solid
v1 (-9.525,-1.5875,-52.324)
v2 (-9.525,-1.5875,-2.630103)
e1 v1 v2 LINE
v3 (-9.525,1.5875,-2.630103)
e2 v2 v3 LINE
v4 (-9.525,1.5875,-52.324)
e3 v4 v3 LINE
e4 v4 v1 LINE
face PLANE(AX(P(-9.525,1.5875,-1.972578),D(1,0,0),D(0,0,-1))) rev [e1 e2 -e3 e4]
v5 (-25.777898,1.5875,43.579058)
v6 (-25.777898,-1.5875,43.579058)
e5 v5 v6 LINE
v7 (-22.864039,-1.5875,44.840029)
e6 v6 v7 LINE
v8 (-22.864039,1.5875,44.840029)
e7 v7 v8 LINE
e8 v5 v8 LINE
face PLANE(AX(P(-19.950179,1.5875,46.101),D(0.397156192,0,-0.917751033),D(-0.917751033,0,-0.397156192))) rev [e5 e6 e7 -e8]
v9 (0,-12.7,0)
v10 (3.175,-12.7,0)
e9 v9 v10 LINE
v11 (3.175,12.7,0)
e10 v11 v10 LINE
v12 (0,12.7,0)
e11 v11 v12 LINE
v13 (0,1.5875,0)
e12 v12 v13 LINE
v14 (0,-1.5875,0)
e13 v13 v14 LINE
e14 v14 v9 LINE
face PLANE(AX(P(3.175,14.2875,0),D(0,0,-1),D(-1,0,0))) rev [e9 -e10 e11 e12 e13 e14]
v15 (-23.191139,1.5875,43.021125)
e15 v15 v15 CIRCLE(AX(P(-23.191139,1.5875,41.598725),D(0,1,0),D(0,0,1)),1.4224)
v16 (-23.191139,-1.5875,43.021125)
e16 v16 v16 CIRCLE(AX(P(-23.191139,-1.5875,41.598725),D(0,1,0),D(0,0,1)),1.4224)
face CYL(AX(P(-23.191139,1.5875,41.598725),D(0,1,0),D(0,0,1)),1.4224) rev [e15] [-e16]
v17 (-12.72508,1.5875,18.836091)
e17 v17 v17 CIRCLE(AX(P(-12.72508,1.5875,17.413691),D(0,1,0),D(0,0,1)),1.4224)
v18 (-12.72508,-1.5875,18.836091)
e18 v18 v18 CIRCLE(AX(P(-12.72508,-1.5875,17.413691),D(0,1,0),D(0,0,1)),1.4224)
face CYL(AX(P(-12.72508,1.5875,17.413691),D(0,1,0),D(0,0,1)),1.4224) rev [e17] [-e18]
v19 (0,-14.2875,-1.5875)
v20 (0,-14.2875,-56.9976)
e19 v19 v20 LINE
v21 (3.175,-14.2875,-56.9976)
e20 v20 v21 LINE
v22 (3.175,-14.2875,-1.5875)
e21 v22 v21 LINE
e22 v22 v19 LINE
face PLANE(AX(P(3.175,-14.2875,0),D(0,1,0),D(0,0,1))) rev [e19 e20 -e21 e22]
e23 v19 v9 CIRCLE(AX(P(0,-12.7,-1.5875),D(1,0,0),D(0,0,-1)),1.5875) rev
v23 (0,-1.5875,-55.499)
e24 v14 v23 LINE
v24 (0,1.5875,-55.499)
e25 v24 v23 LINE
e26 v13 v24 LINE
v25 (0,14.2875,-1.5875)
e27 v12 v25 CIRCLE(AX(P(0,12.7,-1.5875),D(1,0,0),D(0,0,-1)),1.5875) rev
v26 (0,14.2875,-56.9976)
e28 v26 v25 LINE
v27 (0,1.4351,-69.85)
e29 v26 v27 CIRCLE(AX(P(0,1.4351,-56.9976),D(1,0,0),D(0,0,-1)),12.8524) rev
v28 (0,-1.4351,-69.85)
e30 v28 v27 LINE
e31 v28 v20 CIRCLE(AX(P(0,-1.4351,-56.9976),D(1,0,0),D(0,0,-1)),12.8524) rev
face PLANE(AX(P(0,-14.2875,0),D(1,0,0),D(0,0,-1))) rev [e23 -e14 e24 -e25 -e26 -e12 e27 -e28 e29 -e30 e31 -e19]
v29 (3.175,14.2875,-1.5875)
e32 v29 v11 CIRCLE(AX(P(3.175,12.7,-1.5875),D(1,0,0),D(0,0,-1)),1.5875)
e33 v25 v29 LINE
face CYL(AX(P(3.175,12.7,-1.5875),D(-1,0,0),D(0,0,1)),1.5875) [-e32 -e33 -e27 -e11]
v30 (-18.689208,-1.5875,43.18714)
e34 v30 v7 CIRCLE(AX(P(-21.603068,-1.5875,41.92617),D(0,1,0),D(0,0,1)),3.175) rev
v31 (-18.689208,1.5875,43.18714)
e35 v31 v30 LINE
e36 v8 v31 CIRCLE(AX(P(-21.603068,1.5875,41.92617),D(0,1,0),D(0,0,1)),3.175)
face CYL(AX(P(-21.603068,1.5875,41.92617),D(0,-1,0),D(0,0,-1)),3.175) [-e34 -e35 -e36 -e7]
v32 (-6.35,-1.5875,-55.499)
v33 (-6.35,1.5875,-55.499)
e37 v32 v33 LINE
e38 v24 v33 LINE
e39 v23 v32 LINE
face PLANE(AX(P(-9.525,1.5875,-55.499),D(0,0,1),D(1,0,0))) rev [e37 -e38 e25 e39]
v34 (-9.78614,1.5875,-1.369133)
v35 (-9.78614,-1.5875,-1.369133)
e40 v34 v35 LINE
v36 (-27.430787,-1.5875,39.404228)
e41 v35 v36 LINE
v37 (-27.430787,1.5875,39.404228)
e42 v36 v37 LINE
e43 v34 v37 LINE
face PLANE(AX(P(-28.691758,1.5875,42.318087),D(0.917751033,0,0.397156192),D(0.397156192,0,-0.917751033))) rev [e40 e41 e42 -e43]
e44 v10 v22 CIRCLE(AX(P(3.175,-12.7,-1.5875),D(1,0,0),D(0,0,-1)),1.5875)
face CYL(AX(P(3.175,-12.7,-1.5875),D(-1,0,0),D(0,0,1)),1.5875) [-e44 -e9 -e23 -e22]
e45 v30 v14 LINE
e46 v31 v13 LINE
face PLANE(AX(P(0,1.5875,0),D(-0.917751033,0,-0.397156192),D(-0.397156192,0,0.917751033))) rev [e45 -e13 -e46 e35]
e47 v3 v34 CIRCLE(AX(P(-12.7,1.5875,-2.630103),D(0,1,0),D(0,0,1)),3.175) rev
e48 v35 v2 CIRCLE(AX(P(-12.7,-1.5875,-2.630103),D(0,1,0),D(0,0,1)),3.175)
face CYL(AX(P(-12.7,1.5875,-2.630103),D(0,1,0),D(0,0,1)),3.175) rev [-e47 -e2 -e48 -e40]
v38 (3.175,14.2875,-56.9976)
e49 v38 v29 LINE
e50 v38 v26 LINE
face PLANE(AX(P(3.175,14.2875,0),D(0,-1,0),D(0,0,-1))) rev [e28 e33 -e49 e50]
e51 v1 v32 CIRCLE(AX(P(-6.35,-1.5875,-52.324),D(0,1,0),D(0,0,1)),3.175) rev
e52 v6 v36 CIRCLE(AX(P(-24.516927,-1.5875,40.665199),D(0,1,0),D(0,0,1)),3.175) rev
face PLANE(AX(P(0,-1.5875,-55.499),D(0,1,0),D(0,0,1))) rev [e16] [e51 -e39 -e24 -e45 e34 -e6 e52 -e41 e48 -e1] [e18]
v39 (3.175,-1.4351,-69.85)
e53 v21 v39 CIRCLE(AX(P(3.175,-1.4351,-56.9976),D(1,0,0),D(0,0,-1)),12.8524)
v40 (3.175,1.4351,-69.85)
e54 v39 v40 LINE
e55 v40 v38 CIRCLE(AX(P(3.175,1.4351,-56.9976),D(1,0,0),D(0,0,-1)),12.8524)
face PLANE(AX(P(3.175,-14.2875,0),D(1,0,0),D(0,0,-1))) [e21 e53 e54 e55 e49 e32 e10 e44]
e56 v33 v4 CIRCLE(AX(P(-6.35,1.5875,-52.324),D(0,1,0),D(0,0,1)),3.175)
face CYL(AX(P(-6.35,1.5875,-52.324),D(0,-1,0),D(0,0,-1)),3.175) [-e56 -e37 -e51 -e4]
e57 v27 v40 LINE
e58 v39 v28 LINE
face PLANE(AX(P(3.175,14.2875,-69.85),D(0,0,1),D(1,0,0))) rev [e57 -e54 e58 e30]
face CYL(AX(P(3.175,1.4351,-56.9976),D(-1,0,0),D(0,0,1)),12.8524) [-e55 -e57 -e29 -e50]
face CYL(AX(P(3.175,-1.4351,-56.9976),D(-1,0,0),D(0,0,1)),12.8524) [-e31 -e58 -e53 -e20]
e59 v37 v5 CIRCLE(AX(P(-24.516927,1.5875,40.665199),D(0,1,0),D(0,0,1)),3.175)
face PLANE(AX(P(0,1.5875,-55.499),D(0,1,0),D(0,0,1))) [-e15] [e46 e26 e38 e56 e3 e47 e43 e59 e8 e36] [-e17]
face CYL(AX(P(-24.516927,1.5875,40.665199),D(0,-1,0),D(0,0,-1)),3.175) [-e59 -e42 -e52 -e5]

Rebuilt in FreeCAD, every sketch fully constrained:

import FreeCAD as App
import Part
import Sketcher
from FreeCAD import Vector
Q = App.Units.Quantity


def edges_at(feature, points):
    """Names of the edges that pass closest to the given points."""
    edges = feature.Shape.Edges
    near = lambda p: min(range(len(edges)), key=lambda i: edges[i].distToShape(Part.Vertex(*p))[0])
    return sorted({f"Edge{near(p) + 1}" for p in points})

doc = App.newDocument("Part")
body = doc.addObject("PartDesign::Body", "Body")

sketch1 = body.newObject("Sketcher::SketchObject", "Sketch")
sketch1.AttachmentSupport = (doc.getObject("YZ_Plane"), [""])
sketch1.MapMode = "FlatFace"
sketch1.addGeometry([
    Part.LineSegment(Vector(14, 0, 0), Vector(-14, 0, 0)),
    Part.LineSegment(Vector(-14, 0, 0), Vector(-14, -70, 0)),
    Part.LineSegment(Vector(-14, -70, 0), Vector(14, -70, 0)),
    Part.LineSegment(Vector(14, -70, 0), Vector(14, 0, 0)),
], False)
sketch1.addConstraint([
    Sketcher.Constraint("Coincident", 0, 2, 1, 1),
    Sketcher.Constraint("Coincident", 1, 2, 2, 1),
    Sketcher.Constraint("Coincident", 2, 2, 3, 1),
    Sketcher.Constraint("Coincident", 3, 2, 0, 1),
    Sketcher.Constraint("Horizontal", 0),
    Sketcher.Constraint("Vertical", 1),
    Sketcher.Constraint("Horizontal", 2),
    Sketcher.Constraint("Vertical", 3),
    Sketcher.Constraint("Symmetric", 0, 2, 3, 2, -1, 1),
    Sketcher.Constraint("DistanceY", 1, 2, 1, 1, Q("2.75 in")),
    Sketcher.Constraint("DistanceX", 0, 2, 0, 1, Q("1.125 in")),
])
pad1 = body.newObject("PartDesign::Pad", "Pad")
pad1.Profile = sketch1
pad1.Length = Q("0.125 in")
doc.recompute()

fillet = body.newObject("PartDesign::Fillet", "Fillet")
fillet.Base = (pad1, edges_at(pad1, [(1.587, 14.287, -69.85), (1.587, -14.287, -69.85)]))
fillet.Radius = Q("0.506 in")

sketch2 = body.newObject("Sketcher::SketchObject", "Sketch001")
sketch2.AttachmentSupport = (doc.getObject("XZ_Plane"), [""])
sketch2.MapMode = "FlatFace"
sketch2.addGeometry([
    Part.LineSegment(Vector(-20, 46, 0), Vector(0, 0, 0)),
    Part.LineSegment(Vector(0, 0, 0), Vector(0, -55, 0)),
    Part.LineSegment(Vector(0, -55, 0), Vector(-10, -55, 0)),
    Part.LineSegment(Vector(-10, -55, 0), Vector(-10, -2, 0)),
    Part.LineSegment(Vector(-10, -2, 0), Vector(-29, 42, 0)),
    Part.LineSegment(Vector(-29, 42, 0), Vector(-20, 46, 0)),
], False)
sketch2.addConstraint([
    Sketcher.Constraint("Coincident", 0, 2, 1, 1),
    Sketcher.Constraint("Coincident", 1, 2, 2, 1),
    Sketcher.Constraint("Coincident", 2, 2, 3, 1),
    Sketcher.Constraint("Coincident", 3, 2, 4, 1),
    Sketcher.Constraint("Coincident", 4, 2, 5, 1),
    Sketcher.Constraint("Coincident", 5, 2, 0, 1),
    Sketcher.Constraint("Vertical", 1),
    Sketcher.Constraint("Horizontal", 2),
    Sketcher.Constraint("Vertical", 3),
    Sketcher.Constraint("Coincident", 0, 2, -1, 1),
    Sketcher.Constraint("Parallel", 0, 4),
    Sketcher.Constraint("Perpendicular", 4, 5),
    Sketcher.Constraint("DistanceY", 2, 2, 5, 2, Q("4 in")),
    Sketcher.Constraint("Distance", 4, Q("1.9 in")),
    Sketcher.Constraint("DistanceX", 2, 2, 2, 1, Q("0.375 in")),
    Sketcher.Constraint("DistanceY", 1, 2, 1, 1, Q("2.185 in")),
    Sketcher.Constraint("Distance", 5, Q("0.375 in")),
])
pad2 = body.newObject("PartDesign::Pad", "Pad001")
pad2.Profile = sketch2
pad2.Length = Q("0.125 in")
pad2.Midplane = True
doc.recompute()

fillet2 = body.newObject("PartDesign::Fillet", "Fillet001")
fillet2.Base = (pad2, edges_at(pad2, [(1.587, -14.287, 0), (1.587, 14.287, 0)]))
fillet2.Radius = Q("0.0625 in")
doc.recompute()

fillet3 = body.newObject("PartDesign::Fillet", "Fillet002")
fillet3.Base = (fillet2, edges_at(fillet2, [
    (-9.525, 0, -55.499),
    (-9.525, 0, -1.973),
    (-19.95, 0, 46.101),
    (-28.692, 0, 42.318),
]))
fillet3.Radius = Q("0.125 in")

sketch3 = body.newObject("Sketcher::SketchObject", "Sketch002")
sketch3.AttachmentSupport = (doc.getObject("XZ_Plane"), [""])
sketch3.MapMode = "FlatFace"
sketch3.AttachmentOffset = App.Placement(Vector(0, 0, -0.0625 * 25.4), App.Rotation())
sketch3.addGeometry(Part.Circle(Vector(-23.2, 41.6, 0), Vector(0, 0, 1), 1.4), False)
sketch3.addConstraint([
    Sketcher.Constraint("Diameter", 0, Q("0.112 in")),
    Sketcher.Constraint("DistanceX", 0, 3, -1, 1, Q("23.191139 mm")),
    Sketcher.Constraint("DistanceY", -1, 1, 0, 3, Q("41.598725 mm")),
])
doc.recompute()
hole = body.newObject("PartDesign::Hole", "Hole")
hole.Profile = sketch3
hole.ThreadType = "None"
hole.Diameter = Q("0.112 in")
hole.DepthType = "ThroughAll"
hole.Reversed = True
doc.recompute()

datumline = body.newObject("PartDesign::Line", "DatumLine")
datumline.Placement = App.Placement(Vector(0, 0, 0), App.Rotation(Vector(0, 0, 1), Vector(0.397156192, 0, -0.917751033)))
linearpattern = body.newObject("PartDesign::LinearPattern", "LinearPattern")
linearpattern.Originals = [hole]
linearpattern.Direction = (datumline, [""])
linearpattern.Mode = "offset"
linearpattern.Offset = Q("1.0375 in")
linearpattern.Occurrences = 2
body.Tip = linearpattern

doc.recompute()
